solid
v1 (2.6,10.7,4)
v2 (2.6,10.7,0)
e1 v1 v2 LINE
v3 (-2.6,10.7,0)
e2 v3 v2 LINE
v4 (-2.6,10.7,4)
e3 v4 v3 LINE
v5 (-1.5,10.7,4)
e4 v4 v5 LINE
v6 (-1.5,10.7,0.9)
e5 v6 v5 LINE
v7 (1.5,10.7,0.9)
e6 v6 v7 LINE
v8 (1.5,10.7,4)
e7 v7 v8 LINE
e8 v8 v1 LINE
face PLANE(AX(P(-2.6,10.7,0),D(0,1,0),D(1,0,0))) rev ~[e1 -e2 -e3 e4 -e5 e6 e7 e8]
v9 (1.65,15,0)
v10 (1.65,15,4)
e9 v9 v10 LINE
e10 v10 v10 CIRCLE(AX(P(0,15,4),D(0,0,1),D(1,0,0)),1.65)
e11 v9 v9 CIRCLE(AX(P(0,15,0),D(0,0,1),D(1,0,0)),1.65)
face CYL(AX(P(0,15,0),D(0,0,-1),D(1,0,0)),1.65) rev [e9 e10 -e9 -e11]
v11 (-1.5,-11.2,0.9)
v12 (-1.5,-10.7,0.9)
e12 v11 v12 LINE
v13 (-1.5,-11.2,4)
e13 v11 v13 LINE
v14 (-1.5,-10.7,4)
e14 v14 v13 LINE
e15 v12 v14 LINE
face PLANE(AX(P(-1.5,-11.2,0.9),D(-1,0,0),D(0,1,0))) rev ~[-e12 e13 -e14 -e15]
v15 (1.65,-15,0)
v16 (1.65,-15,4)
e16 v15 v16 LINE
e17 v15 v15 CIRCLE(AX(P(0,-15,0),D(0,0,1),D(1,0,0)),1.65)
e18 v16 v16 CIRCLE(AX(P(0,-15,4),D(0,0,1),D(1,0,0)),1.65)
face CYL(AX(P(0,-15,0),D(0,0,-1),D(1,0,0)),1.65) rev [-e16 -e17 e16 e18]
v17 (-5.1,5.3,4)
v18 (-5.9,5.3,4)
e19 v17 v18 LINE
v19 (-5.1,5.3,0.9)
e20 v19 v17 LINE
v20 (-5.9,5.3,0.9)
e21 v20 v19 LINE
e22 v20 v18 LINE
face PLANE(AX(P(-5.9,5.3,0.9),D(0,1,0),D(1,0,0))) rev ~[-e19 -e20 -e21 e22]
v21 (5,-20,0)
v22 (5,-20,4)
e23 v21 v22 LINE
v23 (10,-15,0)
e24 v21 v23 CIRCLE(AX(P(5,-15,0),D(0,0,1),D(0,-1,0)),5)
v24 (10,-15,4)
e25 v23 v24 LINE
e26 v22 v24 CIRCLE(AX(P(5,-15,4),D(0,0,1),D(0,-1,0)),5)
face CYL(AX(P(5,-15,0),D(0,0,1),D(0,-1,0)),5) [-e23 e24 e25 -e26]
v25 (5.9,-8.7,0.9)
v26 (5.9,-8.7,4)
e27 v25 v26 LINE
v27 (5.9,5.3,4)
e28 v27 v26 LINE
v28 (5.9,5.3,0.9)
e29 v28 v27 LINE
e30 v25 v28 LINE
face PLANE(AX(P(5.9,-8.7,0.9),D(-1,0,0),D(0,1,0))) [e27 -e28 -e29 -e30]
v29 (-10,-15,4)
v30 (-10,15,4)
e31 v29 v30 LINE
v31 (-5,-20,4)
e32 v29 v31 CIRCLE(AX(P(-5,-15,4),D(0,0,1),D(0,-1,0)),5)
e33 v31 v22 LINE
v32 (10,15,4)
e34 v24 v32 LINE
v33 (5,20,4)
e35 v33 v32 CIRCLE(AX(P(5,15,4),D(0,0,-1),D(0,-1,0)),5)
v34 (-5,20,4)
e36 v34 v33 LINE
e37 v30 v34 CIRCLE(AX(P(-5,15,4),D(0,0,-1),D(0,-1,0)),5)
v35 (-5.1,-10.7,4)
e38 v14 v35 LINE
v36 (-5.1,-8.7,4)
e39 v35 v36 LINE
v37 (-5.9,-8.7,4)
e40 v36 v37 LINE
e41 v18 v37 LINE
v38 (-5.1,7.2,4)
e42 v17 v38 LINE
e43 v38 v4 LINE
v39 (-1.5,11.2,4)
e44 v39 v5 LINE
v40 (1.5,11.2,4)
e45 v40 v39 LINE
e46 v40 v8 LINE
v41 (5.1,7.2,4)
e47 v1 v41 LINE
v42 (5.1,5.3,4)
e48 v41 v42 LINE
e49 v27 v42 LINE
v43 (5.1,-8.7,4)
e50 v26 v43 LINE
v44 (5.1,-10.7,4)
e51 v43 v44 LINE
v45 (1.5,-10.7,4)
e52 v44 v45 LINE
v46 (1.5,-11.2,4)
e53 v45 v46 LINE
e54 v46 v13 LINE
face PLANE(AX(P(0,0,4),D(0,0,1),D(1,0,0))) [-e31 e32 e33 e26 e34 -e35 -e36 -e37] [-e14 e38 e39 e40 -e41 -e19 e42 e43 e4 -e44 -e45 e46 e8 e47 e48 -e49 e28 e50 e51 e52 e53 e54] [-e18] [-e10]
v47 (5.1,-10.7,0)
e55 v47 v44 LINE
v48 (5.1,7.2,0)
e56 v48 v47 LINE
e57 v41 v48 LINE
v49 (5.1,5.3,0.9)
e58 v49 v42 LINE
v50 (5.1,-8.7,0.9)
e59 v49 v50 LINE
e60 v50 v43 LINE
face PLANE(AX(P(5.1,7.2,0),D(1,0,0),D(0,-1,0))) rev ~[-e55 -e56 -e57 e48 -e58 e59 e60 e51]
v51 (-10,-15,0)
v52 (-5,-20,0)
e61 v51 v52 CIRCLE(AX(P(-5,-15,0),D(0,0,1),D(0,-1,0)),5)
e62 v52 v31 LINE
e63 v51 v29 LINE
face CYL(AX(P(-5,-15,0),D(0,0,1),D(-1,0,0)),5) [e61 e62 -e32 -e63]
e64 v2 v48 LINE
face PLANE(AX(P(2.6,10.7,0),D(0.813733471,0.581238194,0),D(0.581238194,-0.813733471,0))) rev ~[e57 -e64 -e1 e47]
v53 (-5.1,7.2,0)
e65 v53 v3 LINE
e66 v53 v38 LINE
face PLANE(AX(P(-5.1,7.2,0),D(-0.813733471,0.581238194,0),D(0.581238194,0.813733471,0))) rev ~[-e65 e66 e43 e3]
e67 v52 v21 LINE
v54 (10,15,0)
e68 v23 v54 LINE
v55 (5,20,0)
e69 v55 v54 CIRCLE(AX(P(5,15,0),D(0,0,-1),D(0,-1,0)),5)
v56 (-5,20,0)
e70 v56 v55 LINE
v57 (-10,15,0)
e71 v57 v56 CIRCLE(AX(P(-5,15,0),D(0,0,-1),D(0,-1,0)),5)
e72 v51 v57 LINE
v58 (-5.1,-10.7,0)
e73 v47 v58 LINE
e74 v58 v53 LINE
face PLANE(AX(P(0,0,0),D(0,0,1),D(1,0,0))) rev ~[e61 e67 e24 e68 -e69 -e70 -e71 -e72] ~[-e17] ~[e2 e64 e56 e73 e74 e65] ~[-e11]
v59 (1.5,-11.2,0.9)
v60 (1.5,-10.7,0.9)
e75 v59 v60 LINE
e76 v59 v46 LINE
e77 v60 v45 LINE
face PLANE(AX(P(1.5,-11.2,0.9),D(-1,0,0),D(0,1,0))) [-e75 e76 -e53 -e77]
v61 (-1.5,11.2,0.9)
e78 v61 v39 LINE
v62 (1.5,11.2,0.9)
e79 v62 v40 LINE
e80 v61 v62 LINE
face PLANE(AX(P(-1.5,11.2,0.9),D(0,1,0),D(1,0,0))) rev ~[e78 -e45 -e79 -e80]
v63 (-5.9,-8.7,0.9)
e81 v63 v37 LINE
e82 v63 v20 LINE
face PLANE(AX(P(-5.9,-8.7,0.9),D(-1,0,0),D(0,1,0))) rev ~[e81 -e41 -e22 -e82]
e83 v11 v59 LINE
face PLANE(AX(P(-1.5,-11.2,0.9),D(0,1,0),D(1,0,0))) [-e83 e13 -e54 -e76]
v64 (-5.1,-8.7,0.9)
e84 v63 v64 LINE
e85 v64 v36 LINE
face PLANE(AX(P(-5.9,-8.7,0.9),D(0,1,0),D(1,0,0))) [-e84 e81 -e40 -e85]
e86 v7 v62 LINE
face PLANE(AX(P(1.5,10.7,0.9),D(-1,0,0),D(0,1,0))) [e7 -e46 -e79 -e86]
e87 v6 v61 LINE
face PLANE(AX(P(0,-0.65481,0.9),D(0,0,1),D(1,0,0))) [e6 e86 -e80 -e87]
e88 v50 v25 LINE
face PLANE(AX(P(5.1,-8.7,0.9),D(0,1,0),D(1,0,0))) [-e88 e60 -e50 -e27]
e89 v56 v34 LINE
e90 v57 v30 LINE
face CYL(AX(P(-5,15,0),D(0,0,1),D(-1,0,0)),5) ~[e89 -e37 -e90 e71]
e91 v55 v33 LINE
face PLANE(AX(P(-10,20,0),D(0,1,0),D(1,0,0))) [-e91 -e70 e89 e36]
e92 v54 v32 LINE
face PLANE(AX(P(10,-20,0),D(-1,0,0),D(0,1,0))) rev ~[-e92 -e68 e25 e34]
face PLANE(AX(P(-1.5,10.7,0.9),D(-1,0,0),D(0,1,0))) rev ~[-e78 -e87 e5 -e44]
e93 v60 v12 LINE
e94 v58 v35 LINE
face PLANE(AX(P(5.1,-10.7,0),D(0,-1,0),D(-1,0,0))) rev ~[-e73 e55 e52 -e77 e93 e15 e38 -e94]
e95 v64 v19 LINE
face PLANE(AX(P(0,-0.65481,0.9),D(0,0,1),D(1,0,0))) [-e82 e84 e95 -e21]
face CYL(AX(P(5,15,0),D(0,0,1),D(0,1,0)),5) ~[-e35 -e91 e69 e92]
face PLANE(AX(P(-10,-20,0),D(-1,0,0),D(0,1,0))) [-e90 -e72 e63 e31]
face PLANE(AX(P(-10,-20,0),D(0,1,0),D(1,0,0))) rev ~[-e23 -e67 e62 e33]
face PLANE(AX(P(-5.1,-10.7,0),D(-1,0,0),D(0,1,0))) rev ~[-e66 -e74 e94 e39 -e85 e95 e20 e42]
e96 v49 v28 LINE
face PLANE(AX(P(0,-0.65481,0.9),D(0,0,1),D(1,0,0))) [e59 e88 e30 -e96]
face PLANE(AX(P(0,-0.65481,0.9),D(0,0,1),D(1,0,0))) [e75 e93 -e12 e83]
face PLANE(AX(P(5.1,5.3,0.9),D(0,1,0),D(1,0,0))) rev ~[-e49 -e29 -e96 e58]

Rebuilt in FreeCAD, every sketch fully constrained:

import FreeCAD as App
import Part
import Sketcher

V = App.Vector
Q = App.Units.Quantity


def edges_at(feature, points):
    """Names of the edges that pass closest to the given points."""
    edges = feature.Shape.Edges
    near = lambda p: min(range(len(edges)), key=lambda i: edges[i].distToShape(Part.Vertex(*p))[0])
    return sorted({f"Edge{near(p) + 1}" for p in points})


def add_polygon(sketch, points):
    """Adds a closed chain of lines whose ends are joined by coincident constraints."""
    first, n = sketch.GeometryCount, len(points)
    for a, b in zip(points, points[1:] + points[:1]):
        sketch.addGeometry(Part.LineSegment(App.Vector(*a, 0), App.Vector(*b, 0)), False)
    for i in range(n):
        sketch.addConstraint(Sketcher.Constraint("Coincident", first + i, 2, first + (i + 1) % n, 1))

doc = App.newDocument("Part")
params = doc.addObject("Spreadsheet::Sheet", "Params")
for row, (alias, value) in enumerate([
    ("sketch1_diameter", "3.3 mm"),
    ("sketch1_width", "20 mm"),
    ("sketch1_height", "40 mm"),
    ("sketch1_width2", "10.2 mm"),
    ("sketch1_width3", "5.2 mm"),
    ("pad1_length", "4 mm"),
    ("fillet_radius", "5 mm"),
    ("sketch2_width", "3 mm"),
    ("sketch2_height", "2 mm"),
    ("sketch2_height2", "14 mm"),
    ("sketch2_width2", "3.6 mm"),
    ("sketch2_width3", "0.8 mm"),
    ("pocket1_length", "3.5 mm"),
], start=1):
    params.set(f"A{row}", alias)
    params.set(f"B{row}", "=" + value)
    params.setAlias(f"B{row}", alias)

body = doc.addObject("PartDesign::Body", "Body")

sketch1 = body.newObject("Sketcher::SketchObject", "Sketch")
sketch1.AttachmentSupport = (doc.getObject("XY_Plane"), [""])
sketch1.MapMode = "FlatFace"
add_polygon(sketch1, [(-10, 20), (-10, -20), (10, -20), (10, 20)])
sketch1.addGeometry(Part.Circle(V(0, -15, 0), V(0, 0, 1), 1.65), False)
add_polygon(sketch1, [(5.1, 7.2), (5.1, -10.7), (-5.1, -10.7), (-5.1, 7.2), (-2.6, 10.7), (2.6, 10.7)])
sketch1.addGeometry(Part.Circle(V(0, 15, 0), V(0, 0, 1), 1.65), False)
sketch1.addConstraint([
    Sketcher.Constraint("Vertical", 0),
    Sketcher.Constraint("Horizontal", 1),
    Sketcher.Constraint("Vertical", 2),
    Sketcher.Constraint("Horizontal", 3),
    Sketcher.Constraint("Vertical", 5),
    Sketcher.Constraint("Horizontal", 6),
    Sketcher.Constraint("Vertical", 7),
    Sketcher.Constraint("Horizontal", 9),
    Sketcher.Constraint("Equal", 4, 11),
    Sketcher.Constraint("Symmetric", 4, 3, 11, 3, -1, 1),
    Sketcher.Constraint("Symmetric", 0, 2, 2, 2, -1, 1),
    Sketcher.Constraint("Symmetric", 7, 2, 10, 2, -2),
    Sketcher.Constraint("PointOnObject", 4, 3, -2),
    Sketcher.Constraint("Equal", 8, 10),
    Sketcher.Constraint("Diameter", 4, Q("3.3 mm")),
    Sketcher.Constraint("DistanceX", 1, 1, 1, 2, Q("20 mm")),
    Sketcher.Constraint("DistanceY", 0, 2, 0, 1, Q("40 mm")),
    Sketcher.Constraint("DistanceX", 6, 2, 6, 1, Q("10.2 mm")),
    Sketcher.Constraint("DistanceX", 9, 1, 9, 2, Q("5.2 mm")),
    Sketcher.Constraint("DistanceY", 5, 2, 5, 1, Q("17.9 mm")),
    Sketcher.Constraint("DistanceY", 4, 3, -1, 1, Q("15 mm")),
    Sketcher.Constraint("DistanceY", 5, 2, -1, 1, Q("10.7 mm")),
    Sketcher.Constraint("DistanceY", -1, 1, 8, 2, Q("10.7 mm")),
])
sketch1.setExpression("Constraints[24]", "Params.sketch1_diameter")
sketch1.setExpression("Constraints[25]", "Params.sketch1_width")
sketch1.setExpression("Constraints[26]", "Params.sketch1_height")
sketch1.setExpression("Constraints[27]", "Params.sketch1_width2")
sketch1.setExpression("Constraints[28]", "Params.sketch1_width3")
pad1 = body.newObject("PartDesign::Pad", "Pad")
pad1.Profile = sketch1
pad1.setExpression("Length", "Params.pad1_length")
doc.recompute()

fillet = body.newObject("PartDesign::Fillet", "Fillet")
fillet.Base = (pad1, edges_at(pad1, [
    (-10, 20, 2),
    (-10, -20, 2),
    (10, -20, 2),
    (10, 20, 2),
]))
fillet.setExpression("Radius", "Params.fillet_radius")

sketch2 = body.newObject("Sketcher::SketchObject", "Sketch001")
sketch2.AttachmentSupport = (doc.getObject("XY_Plane"), [""])
sketch2.MapMode = "FlatFace"
sketch2.AttachmentOffset = App.Placement(V(0, 0, 0.9), App.Rotation())
add_polygon(sketch2, [(-5.1, -10.7), (-1.5, -10.7), (-1.5, -11.2), (1.5, -11.2), (1.5, -10.7), (5.1, -10.7), (5.1, -8.7), (5.9, -8.7), (5.9, 5.3), (5.1, 5.3), (5.1, 7.2), (2.6, 10.7), (1.5, 10.7), (1.5, 11.2), (-1.5, 11.2), (-1.5, 10.7), (-2.6, 10.7), (-5.1, 7.2), (-5.1, 5.3), (-5.9, 5.3), (-5.9, -8.7), (-5.1, -8.7)])
sketch2.addConstraint([
    Sketcher.Constraint("Horizontal", 0),
    Sketcher.Constraint("Vertical", 1),
    Sketcher.Constraint("Horizontal", 2),
    Sketcher.Constraint("Vertical", 3),
    Sketcher.Constraint("Horizontal", 4),
    Sketcher.Constraint("Vertical", 5),
    Sketcher.Constraint("Horizontal", 6),
    Sketcher.Constraint("Vertical", 7),
    Sketcher.Constraint("Horizontal", 8),
    Sketcher.Constraint("Vertical", 9),
    Sketcher.Constraint("Horizontal", 11),
    Sketcher.Constraint("Vertical", 12),
    Sketcher.Constraint("Horizontal", 13),
    Sketcher.Constraint("Vertical", 14),
    Sketcher.Constraint("Horizontal", 15),
    Sketcher.Constraint("Vertical", 17),
    Sketcher.Constraint("Horizontal", 18),
    Sketcher.Constraint("Vertical", 19),
    Sketcher.Constraint("Horizontal", 20),
    Sketcher.Constraint("Vertical", 21),
    Sketcher.Constraint("Symmetric", 0, 2, 11, 2, -1, 1),
    Sketcher.Constraint("Symmetric", 2, 2, 13, 2, -1, 1),
    Sketcher.Constraint("Symmetric", 0, 2, 3, 2, -2),
    Sketcher.Constraint("Symmetric", 10, 2, 15, 2, -2),
    Sketcher.Constraint("Symmetric", 9, 2, 16, 2, -2),
    Sketcher.Constraint("Symmetric", 7, 2, 18, 2, -2),
    Sketcher.Constraint("Symmetric", 5, 2, 20, 2, -2),
    Sketcher.Constraint("Vertical", 5, 2, 8, 2),
    Sketcher.Constraint("DistanceX", 2, 1, 2, 2, Q("3 mm")),
    Sketcher.Constraint("DistanceY", 5, 1, 5, 2, Q("2 mm")),
    Sketcher.Constraint("DistanceY", 7, 1, 7, 2, Q("14 mm")),
    Sketcher.Constraint("DistanceX", 0, 1, 0, 2, Q("3.6 mm")),
    Sketcher.Constraint("DistanceX", 6, 1, 6, 2, Q("0.8 mm")),
    Sketcher.Constraint("DistanceX", 11, 2, 11, 1, Q("1.1 mm")),
    Sketcher.Constraint("DistanceY", 1, 2, 1, 1, Q("0.5 mm")),
    Sketcher.Constraint("DistanceY", 9, 1, 9, 2, Q("1.9 mm")),
    Sketcher.Constraint("DistanceY", 9, 2, 12, 2, Q("4 mm")),
])
sketch2.setExpression("Constraints[50]", "Params.sketch2_width")
sketch2.setExpression("Constraints[51]", "Params.sketch2_height")
sketch2.setExpression("Constraints[52]", "Params.sketch2_height2")
sketch2.setExpression("Constraints[53]", "Params.sketch2_width2")
sketch2.setExpression("Constraints[54]", "Params.sketch2_width3")
pocket1 = body.newObject("PartDesign::Pocket", "Pocket")
pocket1.Profile = sketch2
pocket1.setExpression("Length", "Params.pocket1_length")
pocket1.Reversed = True

doc.recompute()
